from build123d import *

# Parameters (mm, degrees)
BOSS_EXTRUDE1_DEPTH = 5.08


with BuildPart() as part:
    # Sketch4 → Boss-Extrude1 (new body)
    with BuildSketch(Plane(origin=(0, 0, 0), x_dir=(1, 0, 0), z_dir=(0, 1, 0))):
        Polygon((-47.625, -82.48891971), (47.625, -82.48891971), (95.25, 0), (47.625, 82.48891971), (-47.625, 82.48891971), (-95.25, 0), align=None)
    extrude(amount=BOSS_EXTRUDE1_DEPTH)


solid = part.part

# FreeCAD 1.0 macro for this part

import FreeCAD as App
import Part
import Sketcher
from FreeCAD import Vector
Q = App.Units.Quantity

doc = App.newDocument("Part")
params = doc.addObject("Spreadsheet::Sheet", "Params")
for row, (alias, value) in enumerate([
    ("sketch1_width", "3.75 in"),
    ("pad1_length", "0.2 in"),
], start=1):
    params.set(f"A{row}", alias)
    params.set(f"B{row}", "=" + value)
    params.setAlias(f"B{row}", alias)

body = doc.addObject("PartDesign::Body", "Body")

# Sketch on XZ plane
sketch1 = body.newObject("Sketcher::SketchObject", "Sketch")
sketch1.AttachmentSupport = (doc.getObject("XZ_Plane"), [""])
sketch1.MapMode = "FlatFace"
sketch1.addGeometry([
    Part.LineSegment(Vector(-48, 82, 0), Vector(48, 82, 0)),  # 0
    Part.LineSegment(Vector(48, 82, 0), Vector(95, 0, 0)),  # 1
    Part.LineSegment(Vector(95, 0, 0), Vector(48, -82, 0)),  # 2
    Part.LineSegment(Vector(48, -82, 0), Vector(-48, -82, 0)),  # 3
    Part.LineSegment(Vector(-48, -82, 0), Vector(-95, 0, 0)),  # 4
    Part.LineSegment(Vector(-95, 0, 0), Vector(-48, 82, 0)),  # 5
], False)
sketch1.addConstraint([
    Sketcher.Constraint("Coincident", 0, 2, 1, 1),
    Sketcher.Constraint("Coincident", 1, 2, 2, 1),
    Sketcher.Constraint("Coincident", 2, 2, 3, 1),
    Sketcher.Constraint("Coincident", 3, 2, 4, 1),
    Sketcher.Constraint("Coincident", 4, 2, 5, 1),
    Sketcher.Constraint("Coincident", 5, 2, 0, 1),
    Sketcher.Constraint("Horizontal", 0),
    Sketcher.Constraint("Horizontal", 3),
    Sketcher.Constraint("Symmetric", 0, 2, 3, 2, -1, 1),
    Sketcher.Constraint("Symmetric", 1, 2, 4, 2, -1, 1),
    Sketcher.Constraint("PointOnObject", 1, 2, -1),
    Sketcher.Constraint("Parallel", 2, 5),
    Sketcher.Constraint("Vertical", 0, 2, 2, 2),
    Sketcher.Constraint("Angle", 1, Q("-60 deg")),
    Sketcher.Constraint("DistanceX", 0, 1, 0, 2, Q("3.75 in")),
    Sketcher.Constraint("DistanceX", 4, 2, 1, 2, Q("7.5 in")),
])
sketch1.setExpression("Constraints[14]", "Params.sketch1_width")
pad1 = body.newObject("PartDesign::Pad", "Pad")
pad1.Profile = sketch1
pad1.setExpression("Length", "Params.pad1_length")
pad1.Reversed = True

doc.recompute()
